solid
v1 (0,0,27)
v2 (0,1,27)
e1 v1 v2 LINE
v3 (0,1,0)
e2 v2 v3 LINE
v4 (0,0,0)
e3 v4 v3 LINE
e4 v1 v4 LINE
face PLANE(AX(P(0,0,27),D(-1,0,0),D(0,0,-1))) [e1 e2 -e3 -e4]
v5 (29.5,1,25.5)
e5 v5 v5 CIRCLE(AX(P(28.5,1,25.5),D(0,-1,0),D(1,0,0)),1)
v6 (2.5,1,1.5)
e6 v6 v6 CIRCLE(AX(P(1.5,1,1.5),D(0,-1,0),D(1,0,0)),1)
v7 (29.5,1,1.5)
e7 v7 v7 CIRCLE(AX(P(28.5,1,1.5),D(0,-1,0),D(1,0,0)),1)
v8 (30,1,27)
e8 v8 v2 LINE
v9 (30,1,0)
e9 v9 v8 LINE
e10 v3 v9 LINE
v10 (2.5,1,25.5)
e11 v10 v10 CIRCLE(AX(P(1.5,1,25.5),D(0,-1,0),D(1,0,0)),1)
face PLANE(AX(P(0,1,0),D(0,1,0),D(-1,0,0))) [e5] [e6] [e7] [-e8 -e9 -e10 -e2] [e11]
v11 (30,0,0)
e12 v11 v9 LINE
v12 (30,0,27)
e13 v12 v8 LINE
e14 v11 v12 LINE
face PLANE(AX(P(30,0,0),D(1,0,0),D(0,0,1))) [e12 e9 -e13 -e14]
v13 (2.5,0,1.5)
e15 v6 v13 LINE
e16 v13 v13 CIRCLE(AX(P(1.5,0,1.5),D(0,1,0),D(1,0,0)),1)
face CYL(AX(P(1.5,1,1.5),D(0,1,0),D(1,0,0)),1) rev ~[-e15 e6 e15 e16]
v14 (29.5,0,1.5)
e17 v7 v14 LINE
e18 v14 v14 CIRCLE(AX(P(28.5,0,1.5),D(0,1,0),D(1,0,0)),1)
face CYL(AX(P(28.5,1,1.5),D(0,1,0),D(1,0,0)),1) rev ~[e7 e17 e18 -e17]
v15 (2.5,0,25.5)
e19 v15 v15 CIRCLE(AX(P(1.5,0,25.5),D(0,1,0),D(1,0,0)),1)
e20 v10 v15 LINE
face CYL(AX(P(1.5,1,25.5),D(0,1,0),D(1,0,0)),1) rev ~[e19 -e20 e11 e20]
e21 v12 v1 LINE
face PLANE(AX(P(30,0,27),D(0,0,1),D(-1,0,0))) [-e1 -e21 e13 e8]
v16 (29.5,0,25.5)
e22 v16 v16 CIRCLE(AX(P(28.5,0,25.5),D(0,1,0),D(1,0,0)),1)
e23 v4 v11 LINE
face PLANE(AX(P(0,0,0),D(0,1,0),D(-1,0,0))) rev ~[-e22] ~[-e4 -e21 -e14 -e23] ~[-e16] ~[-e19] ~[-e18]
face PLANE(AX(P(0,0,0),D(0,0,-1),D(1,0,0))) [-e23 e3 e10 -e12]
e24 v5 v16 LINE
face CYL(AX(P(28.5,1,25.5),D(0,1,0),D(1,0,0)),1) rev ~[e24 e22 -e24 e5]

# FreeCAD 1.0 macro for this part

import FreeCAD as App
import Part
import Sketcher

V = App.Vector


def add_polygon(sketch, points):
    """Adds a closed chain of lines whose ends are joined by coincident constraints."""
    first, n = sketch.GeometryCount, len(points)
    for a, b in zip(points, points[1:] + points[:1]):
        sketch.addGeometry(Part.LineSegment(App.Vector(*a, 0), App.Vector(*b, 0)), False)
    for i in range(n):
        sketch.addConstraint(Sketcher.Constraint("Coincident", first + i, 2, first + (i + 1) % n, 1))

doc = App.newDocument("Part")
body = doc.addObject("PartDesign::Body", "Body")

# Sketch on XZ plane
sketch1 = body.newObject("Sketcher::SketchObject", "Sketch")
sketch1.AttachmentSupport = (doc.getObject("XZ_Plane"), [""])
sketch1.MapMode = "FlatFace"
add_polygon(sketch1, [(30, 0), (0, 0), (0, 27), (30, 27)])  # lines 0-3
sketch1.addConstraint([
    Sketcher.Constraint("Horizontal", 0),
    Sketcher.Constraint("Vertical", 1),
    Sketcher.Constraint("Horizontal", 2),
    Sketcher.Constraint("Vertical", 3),
    Sketcher.Constraint("Coincident", 0, 2, -1, 1),
    Sketcher.Constraint("DistanceX", 0, 2, 0, 1, 30.0),
    Sketcher.Constraint("DistanceY", 1, 1, 1, 2, 27.0),
])
pad1 = body.newObject("PartDesign::Pad", "Pad")
pad1.Profile = sketch1
pad1.Length = 1
pad1.Reversed = True

# Sketch on XZ plane
sketch2 = body.newObject("Sketcher::SketchObject", "Sketch001")
sketch2.AttachmentSupport = (doc.getObject("XZ_Plane"), [""])
sketch2.MapMode = "FlatFace"
sketch2.AttachmentOffset = App.Placement(V(0, 0, -1), App.Rotation())
sketch2.addGeometry([
    Part.Circle(V(1.5, 25.5, 0), V(0, 0, 1), 1),
    Part.Circle(V(1.5, 1.5, 0), V(0, 0, 1), 1),
    Part.Circle(V(28.5, 25.5, 0), V(0, 0, 1), 1),
    Part.Circle(V(28.5, 1.5, 0), V(0, 0, 1), 1),
], False)
sketch2.addConstraint([
    Sketcher.Constraint("Equal", 0, 1),
    Sketcher.Constraint("Equal", 1, 2),
    Sketcher.Constraint("Equal", 2, 3),
    Sketcher.Constraint("Horizontal", 0, 3, 2, 3),
    Sketcher.Constraint("Horizontal", 1, 3, 3, 3),
    Sketcher.Constraint("Vertical", 0, 3, 1, 3),
    Sketcher.Constraint("Vertical", 2, 3, 3, 3),
    Sketcher.Constraint("Diameter", 0, 2.0),
    Sketcher.Constraint("DistanceX", -1, 1, 0, 3, 1.5),
    Sketcher.Constraint("DistanceY", -1, 1, 1, 3, 1.5),
    Sketcher.Constraint("DistanceY", 1, 3, 0, 3, 24.0),
    Sketcher.Constraint("DistanceX", 0, 3, 2, 3, 27.0),
])
pocket1 = body.newObject("PartDesign::Pocket", "Pocket")
pocket1.Profile = sketch2
pocket1.Type = "ThroughAll"
pocket1.Reversed = True

doc.recompute()
